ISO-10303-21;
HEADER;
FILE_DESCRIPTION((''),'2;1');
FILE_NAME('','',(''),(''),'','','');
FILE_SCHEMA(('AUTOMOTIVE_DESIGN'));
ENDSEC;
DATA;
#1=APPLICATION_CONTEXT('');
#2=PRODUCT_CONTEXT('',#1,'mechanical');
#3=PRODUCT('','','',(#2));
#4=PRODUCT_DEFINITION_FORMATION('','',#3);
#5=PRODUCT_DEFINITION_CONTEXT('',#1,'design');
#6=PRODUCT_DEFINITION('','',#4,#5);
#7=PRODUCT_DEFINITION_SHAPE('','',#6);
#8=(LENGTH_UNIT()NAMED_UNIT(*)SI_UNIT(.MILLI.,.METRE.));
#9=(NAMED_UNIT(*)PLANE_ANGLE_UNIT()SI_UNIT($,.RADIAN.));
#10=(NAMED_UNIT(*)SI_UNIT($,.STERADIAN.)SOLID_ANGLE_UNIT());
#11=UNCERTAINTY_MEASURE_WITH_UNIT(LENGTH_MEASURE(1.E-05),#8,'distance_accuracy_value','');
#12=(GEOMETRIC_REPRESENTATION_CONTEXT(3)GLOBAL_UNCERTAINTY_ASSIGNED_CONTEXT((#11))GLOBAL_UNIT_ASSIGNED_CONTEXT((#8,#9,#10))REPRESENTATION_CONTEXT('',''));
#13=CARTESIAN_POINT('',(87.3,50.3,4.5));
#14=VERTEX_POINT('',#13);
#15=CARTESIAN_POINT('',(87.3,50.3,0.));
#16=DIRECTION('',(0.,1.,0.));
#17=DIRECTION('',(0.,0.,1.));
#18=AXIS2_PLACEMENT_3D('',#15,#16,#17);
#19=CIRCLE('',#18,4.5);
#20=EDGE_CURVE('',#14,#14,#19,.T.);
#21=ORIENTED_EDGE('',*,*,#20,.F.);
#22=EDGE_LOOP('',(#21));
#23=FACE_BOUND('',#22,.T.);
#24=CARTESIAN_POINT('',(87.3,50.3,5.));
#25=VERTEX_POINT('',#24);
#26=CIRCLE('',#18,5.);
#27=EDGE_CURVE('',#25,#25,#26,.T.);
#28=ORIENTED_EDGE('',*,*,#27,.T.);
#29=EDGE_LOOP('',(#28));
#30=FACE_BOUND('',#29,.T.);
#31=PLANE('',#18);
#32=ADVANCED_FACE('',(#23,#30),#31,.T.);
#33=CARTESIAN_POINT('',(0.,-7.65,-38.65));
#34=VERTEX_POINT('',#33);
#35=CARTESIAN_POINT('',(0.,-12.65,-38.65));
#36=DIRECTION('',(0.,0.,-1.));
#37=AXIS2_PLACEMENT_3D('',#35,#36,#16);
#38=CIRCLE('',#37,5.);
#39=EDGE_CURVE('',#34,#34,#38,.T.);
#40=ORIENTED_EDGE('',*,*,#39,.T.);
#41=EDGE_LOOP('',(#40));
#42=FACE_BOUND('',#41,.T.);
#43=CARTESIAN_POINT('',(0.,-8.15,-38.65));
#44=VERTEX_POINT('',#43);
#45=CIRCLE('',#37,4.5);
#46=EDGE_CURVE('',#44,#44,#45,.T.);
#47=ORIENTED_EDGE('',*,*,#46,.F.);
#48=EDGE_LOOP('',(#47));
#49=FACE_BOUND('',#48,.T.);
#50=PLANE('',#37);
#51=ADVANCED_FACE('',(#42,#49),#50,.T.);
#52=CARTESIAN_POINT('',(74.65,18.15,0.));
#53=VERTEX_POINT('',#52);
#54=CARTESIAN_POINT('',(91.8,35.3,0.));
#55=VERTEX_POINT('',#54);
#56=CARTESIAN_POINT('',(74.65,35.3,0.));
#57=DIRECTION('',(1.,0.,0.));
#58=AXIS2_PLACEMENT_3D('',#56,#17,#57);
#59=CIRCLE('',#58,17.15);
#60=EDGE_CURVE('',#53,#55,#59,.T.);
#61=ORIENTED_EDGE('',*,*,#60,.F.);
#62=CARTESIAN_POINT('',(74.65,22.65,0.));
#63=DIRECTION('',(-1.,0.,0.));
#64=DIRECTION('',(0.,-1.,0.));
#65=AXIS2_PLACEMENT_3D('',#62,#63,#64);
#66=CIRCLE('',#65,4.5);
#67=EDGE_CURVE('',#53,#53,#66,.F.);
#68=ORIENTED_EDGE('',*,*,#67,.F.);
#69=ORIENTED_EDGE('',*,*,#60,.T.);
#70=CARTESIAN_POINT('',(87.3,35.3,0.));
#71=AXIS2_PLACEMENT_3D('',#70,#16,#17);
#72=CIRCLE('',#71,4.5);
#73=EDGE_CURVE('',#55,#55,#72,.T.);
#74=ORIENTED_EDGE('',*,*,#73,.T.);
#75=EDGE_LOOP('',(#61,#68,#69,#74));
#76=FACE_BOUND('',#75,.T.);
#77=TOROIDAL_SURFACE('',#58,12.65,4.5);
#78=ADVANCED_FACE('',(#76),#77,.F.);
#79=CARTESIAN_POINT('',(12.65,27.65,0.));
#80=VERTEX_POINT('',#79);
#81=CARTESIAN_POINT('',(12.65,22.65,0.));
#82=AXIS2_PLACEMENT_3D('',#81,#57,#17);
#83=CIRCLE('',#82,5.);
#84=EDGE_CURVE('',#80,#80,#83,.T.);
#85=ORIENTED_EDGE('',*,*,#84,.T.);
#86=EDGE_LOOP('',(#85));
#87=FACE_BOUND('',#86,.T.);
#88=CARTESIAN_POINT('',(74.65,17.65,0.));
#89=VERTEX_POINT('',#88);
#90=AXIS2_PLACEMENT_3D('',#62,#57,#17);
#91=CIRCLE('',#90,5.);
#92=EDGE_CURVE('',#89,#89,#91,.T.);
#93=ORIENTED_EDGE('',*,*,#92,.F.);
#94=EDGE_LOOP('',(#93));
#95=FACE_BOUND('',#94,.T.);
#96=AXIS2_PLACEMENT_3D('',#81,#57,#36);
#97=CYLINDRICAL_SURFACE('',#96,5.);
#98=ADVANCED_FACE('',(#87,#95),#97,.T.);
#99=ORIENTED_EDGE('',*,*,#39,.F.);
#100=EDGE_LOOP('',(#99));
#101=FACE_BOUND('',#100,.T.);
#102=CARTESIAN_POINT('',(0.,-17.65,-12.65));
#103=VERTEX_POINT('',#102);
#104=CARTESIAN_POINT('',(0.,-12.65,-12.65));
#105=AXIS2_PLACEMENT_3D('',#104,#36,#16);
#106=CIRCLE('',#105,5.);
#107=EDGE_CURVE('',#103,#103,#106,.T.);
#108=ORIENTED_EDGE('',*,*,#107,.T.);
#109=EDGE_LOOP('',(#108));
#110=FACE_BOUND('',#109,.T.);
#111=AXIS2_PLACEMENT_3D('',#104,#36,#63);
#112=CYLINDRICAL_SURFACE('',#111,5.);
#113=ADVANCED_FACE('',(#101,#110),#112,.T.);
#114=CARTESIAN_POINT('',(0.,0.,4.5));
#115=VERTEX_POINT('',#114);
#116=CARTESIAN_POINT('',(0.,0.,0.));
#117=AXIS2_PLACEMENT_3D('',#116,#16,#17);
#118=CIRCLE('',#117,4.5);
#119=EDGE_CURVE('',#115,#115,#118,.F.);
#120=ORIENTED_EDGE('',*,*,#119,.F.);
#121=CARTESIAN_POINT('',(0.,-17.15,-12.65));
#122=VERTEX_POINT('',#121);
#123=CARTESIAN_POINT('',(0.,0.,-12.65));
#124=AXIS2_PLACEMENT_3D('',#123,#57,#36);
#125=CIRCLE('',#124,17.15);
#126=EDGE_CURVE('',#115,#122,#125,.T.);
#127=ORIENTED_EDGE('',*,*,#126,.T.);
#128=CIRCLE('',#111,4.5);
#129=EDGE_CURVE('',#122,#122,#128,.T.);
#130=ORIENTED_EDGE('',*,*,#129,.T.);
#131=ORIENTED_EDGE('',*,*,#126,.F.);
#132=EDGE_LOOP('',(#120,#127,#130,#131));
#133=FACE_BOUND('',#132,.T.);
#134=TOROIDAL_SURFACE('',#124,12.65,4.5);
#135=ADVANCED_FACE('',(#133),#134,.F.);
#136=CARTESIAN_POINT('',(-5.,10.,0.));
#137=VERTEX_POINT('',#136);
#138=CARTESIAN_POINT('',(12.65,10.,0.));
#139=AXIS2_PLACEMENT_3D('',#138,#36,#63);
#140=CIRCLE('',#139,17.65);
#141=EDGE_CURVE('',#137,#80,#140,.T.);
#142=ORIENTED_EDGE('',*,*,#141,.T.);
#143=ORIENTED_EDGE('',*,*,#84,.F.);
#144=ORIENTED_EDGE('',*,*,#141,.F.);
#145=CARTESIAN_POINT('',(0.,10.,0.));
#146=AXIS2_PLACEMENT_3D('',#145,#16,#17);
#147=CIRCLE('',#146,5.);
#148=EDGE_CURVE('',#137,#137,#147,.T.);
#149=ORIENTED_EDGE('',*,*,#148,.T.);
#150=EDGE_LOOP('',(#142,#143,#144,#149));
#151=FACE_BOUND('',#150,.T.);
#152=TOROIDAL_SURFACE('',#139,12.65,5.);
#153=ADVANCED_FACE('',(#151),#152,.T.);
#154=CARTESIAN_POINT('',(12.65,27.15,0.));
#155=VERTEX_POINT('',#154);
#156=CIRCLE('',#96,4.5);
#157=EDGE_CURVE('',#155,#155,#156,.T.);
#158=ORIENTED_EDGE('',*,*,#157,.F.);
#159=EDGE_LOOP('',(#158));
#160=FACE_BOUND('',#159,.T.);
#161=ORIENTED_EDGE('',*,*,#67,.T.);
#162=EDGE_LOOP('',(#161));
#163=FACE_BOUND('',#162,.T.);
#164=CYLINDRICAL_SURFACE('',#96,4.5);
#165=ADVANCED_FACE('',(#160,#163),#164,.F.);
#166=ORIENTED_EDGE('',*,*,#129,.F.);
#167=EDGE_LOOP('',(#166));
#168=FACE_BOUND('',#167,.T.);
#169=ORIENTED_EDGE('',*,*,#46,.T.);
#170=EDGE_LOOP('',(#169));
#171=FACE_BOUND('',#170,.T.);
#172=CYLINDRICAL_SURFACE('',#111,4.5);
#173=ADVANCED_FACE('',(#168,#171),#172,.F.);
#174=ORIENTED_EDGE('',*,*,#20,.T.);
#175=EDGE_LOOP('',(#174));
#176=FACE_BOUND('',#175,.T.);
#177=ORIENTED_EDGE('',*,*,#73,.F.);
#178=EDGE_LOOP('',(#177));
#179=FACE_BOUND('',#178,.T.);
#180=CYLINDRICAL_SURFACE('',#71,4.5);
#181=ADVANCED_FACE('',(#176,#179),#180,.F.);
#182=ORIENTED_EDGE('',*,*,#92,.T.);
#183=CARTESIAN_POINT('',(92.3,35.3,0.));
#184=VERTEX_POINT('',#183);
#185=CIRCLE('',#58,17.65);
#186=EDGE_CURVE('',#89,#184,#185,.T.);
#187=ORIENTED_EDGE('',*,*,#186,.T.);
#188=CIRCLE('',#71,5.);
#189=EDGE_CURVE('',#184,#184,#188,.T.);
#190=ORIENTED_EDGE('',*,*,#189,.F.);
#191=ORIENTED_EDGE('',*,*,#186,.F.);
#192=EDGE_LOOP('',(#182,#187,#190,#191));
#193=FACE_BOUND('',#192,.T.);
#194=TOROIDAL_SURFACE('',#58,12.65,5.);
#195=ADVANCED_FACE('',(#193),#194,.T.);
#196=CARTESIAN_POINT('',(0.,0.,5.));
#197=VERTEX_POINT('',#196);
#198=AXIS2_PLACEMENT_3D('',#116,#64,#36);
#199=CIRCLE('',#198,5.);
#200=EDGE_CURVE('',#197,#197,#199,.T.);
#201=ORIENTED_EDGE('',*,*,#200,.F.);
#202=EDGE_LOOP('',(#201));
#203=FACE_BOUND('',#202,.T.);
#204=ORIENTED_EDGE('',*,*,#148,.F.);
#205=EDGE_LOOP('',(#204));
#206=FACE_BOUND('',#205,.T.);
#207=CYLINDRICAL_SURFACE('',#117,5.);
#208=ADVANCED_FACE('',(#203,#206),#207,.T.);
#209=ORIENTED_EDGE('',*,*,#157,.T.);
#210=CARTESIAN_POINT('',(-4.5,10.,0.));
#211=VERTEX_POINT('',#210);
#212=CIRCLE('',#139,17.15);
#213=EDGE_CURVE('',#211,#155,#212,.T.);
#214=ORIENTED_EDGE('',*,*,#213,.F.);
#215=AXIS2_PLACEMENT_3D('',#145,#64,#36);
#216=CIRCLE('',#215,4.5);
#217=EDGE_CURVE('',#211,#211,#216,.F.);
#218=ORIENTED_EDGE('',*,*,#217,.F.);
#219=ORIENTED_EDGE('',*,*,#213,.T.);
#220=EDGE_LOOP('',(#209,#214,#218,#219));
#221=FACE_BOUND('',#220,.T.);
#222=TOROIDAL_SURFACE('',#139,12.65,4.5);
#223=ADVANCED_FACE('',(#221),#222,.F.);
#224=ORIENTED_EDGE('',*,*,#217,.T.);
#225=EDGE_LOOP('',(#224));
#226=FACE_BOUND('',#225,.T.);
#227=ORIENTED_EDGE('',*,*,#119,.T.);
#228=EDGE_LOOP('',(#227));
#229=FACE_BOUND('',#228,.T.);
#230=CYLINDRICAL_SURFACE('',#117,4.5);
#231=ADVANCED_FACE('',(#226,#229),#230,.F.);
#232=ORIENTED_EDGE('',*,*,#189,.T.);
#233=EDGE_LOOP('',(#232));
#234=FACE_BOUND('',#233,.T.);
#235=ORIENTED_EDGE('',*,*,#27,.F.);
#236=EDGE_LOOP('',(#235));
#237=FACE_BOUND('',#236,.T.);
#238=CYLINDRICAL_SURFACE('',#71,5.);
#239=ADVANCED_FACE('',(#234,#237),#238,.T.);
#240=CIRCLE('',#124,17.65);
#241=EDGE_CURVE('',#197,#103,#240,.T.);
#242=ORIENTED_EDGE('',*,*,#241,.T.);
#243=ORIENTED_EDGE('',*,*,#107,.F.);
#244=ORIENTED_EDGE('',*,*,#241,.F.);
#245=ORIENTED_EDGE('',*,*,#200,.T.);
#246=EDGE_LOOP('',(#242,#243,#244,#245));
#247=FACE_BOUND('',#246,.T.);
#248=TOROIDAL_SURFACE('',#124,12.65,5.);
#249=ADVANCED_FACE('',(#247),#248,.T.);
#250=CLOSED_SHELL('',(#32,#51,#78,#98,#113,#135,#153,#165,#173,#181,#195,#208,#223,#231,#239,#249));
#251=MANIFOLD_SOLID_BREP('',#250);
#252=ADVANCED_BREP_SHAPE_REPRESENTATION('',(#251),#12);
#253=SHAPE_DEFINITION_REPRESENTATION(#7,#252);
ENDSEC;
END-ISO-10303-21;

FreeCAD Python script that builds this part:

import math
import FreeCAD as App
import Part
import Sketcher

V = App.Vector
Q = App.Units.Quantity


def faces_at(feature, points):
    """Names of the faces that lie closest to the given points."""
    faces = feature.Shape.Faces
    near = lambda p: min(range(len(faces)), key=lambda i: faces[i].distToShape(Part.Vertex(*p))[0])
    return sorted({f"Face{near(p) + 1}" for p in points})

doc = App.newDocument("Part")
params = doc.addObject("Spreadsheet::Sheet", "Params")
for row, (alias, value) in enumerate([
    ("sketch1_diameter", "10 mm"),
    ("sketch2_width", "62 mm"),
    ("sketch2_height", "10 mm"),
    ("sketch2_height2", "15 mm"),
    ("sketch2_radius", "12.65 mm"),
    ("sketch3_diameter", "10 mm"),
    ("sketch4_height", "26 mm"),
    ("sketch4_radius", "12.65 mm"),
    ("thickness_wall", "0.5 mm"),
], start=1):
    params.set(f"A{row}", alias)
    params.set(f"B{row}", "=" + value)
    params.setAlias(f"B{row}", alias)

body = doc.addObject("PartDesign::Body", "Body")

sketch1 = body.newObject("Sketcher::SketchObject", "Sketch")
sketch1.AttachmentSupport = (doc.getObject("XZ_Plane"), [""])
sketch1.MapMode = "FlatFace"
sketch1.addGeometry(Part.Circle(V(0, 0, 0), V(0, 0, 1), 5), False)
sketch1.addConstraint([
    Sketcher.Constraint("Coincident", 0, 3, -1, 1),
    Sketcher.Constraint("Diameter", 0, Q("10 mm")),
])
sketch1.setExpression("Constraints[1]", "Params.sketch1_diameter")

sketch2 = body.newObject("Sketcher::SketchObject", "Sketch001")
sketch2.AttachmentSupport = (doc.getObject("XY_Plane"), [""])
sketch2.MapMode = "FlatFace"
sketch2.addGeometry([
    Part.LineSegment(V(0, 0, 0), V(0, 10, 0)),
    Part.ArcOfCircle(Part.Circle(V(13, 10, 0), V(0, 0, 1), 13), math.radians(90), math.radians(180)),
    Part.LineSegment(V(13, 23, 0), V(75, 23, 0)),
    Part.ArcOfCircle(Part.Circle(V(75, 35, 0), V(0, 0, 1), 13), math.radians(-90), math.radians(0)),
    Part.LineSegment(V(87, 35, 0), V(87, 50, 0)),
], False)
sketch2.addConstraint([
    Sketcher.Constraint("Tangent", 0, 2, 1, 2),
    Sketcher.Constraint("Tangent", 1, 1, 2, 1),
    Sketcher.Constraint("Tangent", 2, 2, 3, 1),
    Sketcher.Constraint("Tangent", 3, 2, 4, 1),
    Sketcher.Constraint("Vertical", 0),
    Sketcher.Constraint("Horizontal", 2),
    Sketcher.Constraint("Vertical", 4),
    Sketcher.Constraint("Coincident", 0, 1, -1, 1),
    Sketcher.Constraint("Equal", 1, 3),
    Sketcher.Constraint("DistanceX", 2, 1, 2, 2, Q("62 mm")),
    Sketcher.Constraint("DistanceY", 0, 1, 0, 2, Q("10 mm")),
    Sketcher.Constraint("DistanceY", 4, 1, 4, 2, Q("15 mm")),
    Sketcher.Constraint("Radius", 1, Q("12.65 mm")),
])
sketch2.setExpression("Constraints[9]", "Params.sketch2_width")
sketch2.setExpression("Constraints[10]", "Params.sketch2_height")
sketch2.setExpression("Constraints[11]", "Params.sketch2_height2")
sketch2.setExpression("Constraints[12]", "Params.sketch2_radius")
doc.recompute()

additivepipe = body.newObject("PartDesign::AdditivePipe", "AdditivePipe")
additivepipe.Profile = sketch1
additivepipe.Spine = (sketch2, ["Edge1", "Edge2", "Edge3", "Edge4", "Edge5"])

sketch3 = body.newObject("Sketcher::SketchObject", "Sketch002")
sketch3.AttachmentSupport = (doc.getObject("XZ_Plane"), [""])
sketch3.MapMode = "FlatFace"
sketch3.addGeometry(Part.Circle(V(0, 0, 0), V(0, 0, 1), 5), False)
sketch3.addConstraint([
    Sketcher.Constraint("Coincident", 0, 3, -1, 1),
    Sketcher.Constraint("Diameter", 0, Q("10 mm")),
])
sketch3.setExpression("Constraints[1]", "Params.sketch3_diameter")

sketch4 = body.newObject("Sketcher::SketchObject", "Sketch003")
sketch4.AttachmentSupport = (doc.getObject("YZ_Plane"), [""])
sketch4.MapMode = "FlatFace"
sketch4.addGeometry([
    Part.LineSegment(V(-13, -39, 0), V(-13, -13, 0)),
    Part.ArcOfCircle(Part.Circle(V(0, -13, 0), V(0, 0, 1), 13), math.radians(90), math.radians(180)),
], False)
sketch4.addConstraint([
    Sketcher.Constraint("Tangent", 0, 2, 1, 2),
    Sketcher.Constraint("Vertical", 0),
    Sketcher.Constraint("Coincident", 1, 1, -1, 1),
    Sketcher.Constraint("PointOnObject", 1, 3, -2),
    Sketcher.Constraint("DistanceY", 0, 1, 0, 2, Q("26 mm")),
    Sketcher.Constraint("Radius", 1, Q("12.65 mm")),
])
sketch4.setExpression("Constraints[4]", "Params.sketch4_height")
sketch4.setExpression("Constraints[5]", "Params.sketch4_radius")
doc.recompute()

additivepipe2 = body.newObject("PartDesign::AdditivePipe", "AdditivePipe001")
additivepipe2.Profile = sketch3
additivepipe2.Spine = (sketch4, ["Edge1", "Edge2"])
doc.recompute()

thickness = body.newObject("PartDesign::Thickness", "Thickness")
thickness.Base = (additivepipe2, faces_at(additivepipe2, [(0, -12.65, -38.65), (87.3, 50.3, 0)]))
thickness.setExpression("Value", "Params.thickness_wall")
thickness.Reversed = True
thickness.Join = "Intersection"

doc.recompute()
